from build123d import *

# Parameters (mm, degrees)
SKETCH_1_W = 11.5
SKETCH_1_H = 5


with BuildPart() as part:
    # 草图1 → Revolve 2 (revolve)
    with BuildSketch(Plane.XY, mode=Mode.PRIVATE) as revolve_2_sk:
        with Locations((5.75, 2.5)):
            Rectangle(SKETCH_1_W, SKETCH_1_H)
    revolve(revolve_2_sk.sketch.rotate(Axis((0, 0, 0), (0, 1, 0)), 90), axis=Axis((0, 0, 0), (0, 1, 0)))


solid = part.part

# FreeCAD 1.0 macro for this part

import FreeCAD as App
import Part
import Sketcher
Q = App.Units.Quantity


def add_polygon(sketch, points):
    """Adds a closed chain of lines whose ends are joined by coincident constraints."""
    first, n = sketch.GeometryCount, len(points)
    for a, b in zip(points, points[1:] + points[:1]):
        sketch.addGeometry(Part.LineSegment(App.Vector(*a, 0), App.Vector(*b, 0)), False)
    for i in range(n):
        sketch.addConstraint(Sketcher.Constraint("Coincident", first + i, 2, first + (i + 1) % n, 1))

doc = App.newDocument("Part")
body = doc.addObject("PartDesign::Body", "Body")

# Sketch on XY plane
sketch1 = body.newObject("Sketcher::SketchObject", "Sketch")
sketch1.AttachmentSupport = (doc.getObject("XY_Plane"), [""])
sketch1.MapMode = "FlatFace"
add_polygon(sketch1, [(0, 5), (0, 0), (12, 0), (12, 5)])  # lines 0-3
sketch1.addConstraint(Sketcher.Constraint("Vertical", 0))
sketch1.addConstraint(Sketcher.Constraint("Horizontal", 1))
sketch1.addConstraint(Sketcher.Constraint("Vertical", 2))
sketch1.addConstraint(Sketcher.Constraint("Horizontal", 3))
sketch1.addConstraint(Sketcher.Constraint("Coincident", 0, 2, -1, 1))
sketch1.addConstraint(Sketcher.Constraint("DistanceY", 0, 2, 0, 1, Q("5 mm")))
sketch1.addConstraint(Sketcher.Constraint("DistanceX", 1, 1, 1, 2, Q("11.5 mm")))
revolution = body.newObject("PartDesign::Revolution", "Revolution")
revolution.Profile = sketch1
revolution.ReferenceAxis = (sketch1, ["V_Axis"])
revolution.Angle = 360

doc.recompute()
